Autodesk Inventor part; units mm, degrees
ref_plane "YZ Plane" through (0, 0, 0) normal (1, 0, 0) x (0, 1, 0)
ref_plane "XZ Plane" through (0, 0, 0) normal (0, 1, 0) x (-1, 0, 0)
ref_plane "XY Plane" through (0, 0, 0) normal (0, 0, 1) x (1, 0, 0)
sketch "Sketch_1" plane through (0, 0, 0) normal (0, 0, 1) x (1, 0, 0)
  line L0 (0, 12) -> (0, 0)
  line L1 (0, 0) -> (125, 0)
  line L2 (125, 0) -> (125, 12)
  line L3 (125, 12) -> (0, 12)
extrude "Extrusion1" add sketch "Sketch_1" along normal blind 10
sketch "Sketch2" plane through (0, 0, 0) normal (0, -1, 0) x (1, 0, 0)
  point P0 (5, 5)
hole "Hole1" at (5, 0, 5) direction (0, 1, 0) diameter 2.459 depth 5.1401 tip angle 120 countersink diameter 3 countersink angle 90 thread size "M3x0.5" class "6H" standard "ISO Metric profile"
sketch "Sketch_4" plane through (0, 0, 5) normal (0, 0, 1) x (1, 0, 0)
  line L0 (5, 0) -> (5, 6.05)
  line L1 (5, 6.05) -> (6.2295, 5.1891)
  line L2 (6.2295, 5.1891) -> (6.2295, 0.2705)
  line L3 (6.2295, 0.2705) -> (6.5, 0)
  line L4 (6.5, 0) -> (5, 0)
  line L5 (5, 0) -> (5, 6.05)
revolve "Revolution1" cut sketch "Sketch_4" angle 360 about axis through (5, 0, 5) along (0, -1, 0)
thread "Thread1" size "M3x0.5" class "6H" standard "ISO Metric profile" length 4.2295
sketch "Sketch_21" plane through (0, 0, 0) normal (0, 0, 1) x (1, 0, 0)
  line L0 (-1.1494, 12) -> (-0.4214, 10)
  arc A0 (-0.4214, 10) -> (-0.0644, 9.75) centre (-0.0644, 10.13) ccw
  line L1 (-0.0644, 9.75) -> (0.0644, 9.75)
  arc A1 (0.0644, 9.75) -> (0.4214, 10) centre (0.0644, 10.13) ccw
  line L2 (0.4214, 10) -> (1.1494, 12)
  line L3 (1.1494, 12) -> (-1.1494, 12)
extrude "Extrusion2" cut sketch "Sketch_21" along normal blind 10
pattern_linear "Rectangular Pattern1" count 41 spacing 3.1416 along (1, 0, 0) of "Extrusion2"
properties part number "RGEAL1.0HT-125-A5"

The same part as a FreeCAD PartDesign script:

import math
import FreeCAD as App
import Part
import Sketcher
Q = App.Units.Quantity

doc = App.newDocument("Part")
params = doc.addObject("Spreadsheet::Sheet", "Params")
for row, (alias, value) in enumerate([
    ("sketch1_width", "125 mm"),
    ("sketch1_height", "12 mm"),
    ("pad1_length", "10 mm"),
    ("hole_diameter", "2.459 mm"),
    ("hole_depth", "5.1401 mm"),
    ("hole_csink_diameter", "3 mm"),
    ("sketch3_width", "1.5 mm"),
    ("sketch3_height", "6.05 mm"),
    ("groove_angle", "360 deg"),
    ("sketch4_radius", "0.38 mm"),
    ("pocket1_length", "10 mm"),
    ("linearpattern_pitch", "3.1416 mm"),
], start=1):
    params.set(f"A{row}", alias)
    params.set(f"B{row}", "=" + value)
    params.setAlias(f"B{row}", alias)

body = doc.addObject("PartDesign::Body", "Body")

# Sketch on XY plane
sketch1 = body.newObject("Sketcher::SketchObject", "Sketch")
sketch1.AttachmentSupport = (doc.getObject("XY_Plane"), [""])
sketch1.MapMode = "FlatFace"
sketch1.addGeometry([
    Part.LineSegment(App.Vector(125, 12, 0), App.Vector(0, 12, 0)),
    Part.LineSegment(App.Vector(0, 12, 0), App.Vector(0, 0, 0)),
    Part.LineSegment(App.Vector(0, 0, 0), App.Vector(125, 0, 0)),
    Part.LineSegment(App.Vector(125, 0, 0), App.Vector(125, 12, 0)),
], False)
sketch1.addConstraint([
    Sketcher.Constraint("Coincident", 0, 2, 1, 1),
    Sketcher.Constraint("Coincident", 1, 2, 2, 1),
    Sketcher.Constraint("Coincident", 2, 2, 3, 1),
    Sketcher.Constraint("Coincident", 3, 2, 0, 1),
    Sketcher.Constraint("Horizontal", 0),
    Sketcher.Constraint("Vertical", 1),
    Sketcher.Constraint("Horizontal", 2),
    Sketcher.Constraint("Vertical", 3),
    Sketcher.Constraint("Coincident", 1, 2, -1, 1),
    Sketcher.Constraint("DistanceX", 0, 2, 0, 1, 125.0),
    Sketcher.Constraint("DistanceY", 1, 2, 1, 1, 12.0),
])
sketch1.setExpression("Constraints[9]", "Params.sketch1_width")
sketch1.setExpression("Constraints[10]", "Params.sketch1_height")
pad1 = body.newObject("PartDesign::Pad", "Pad")
pad1.Profile = sketch1
pad1.setExpression("Length", "Params.pad1_length")

# Sketch on XZ plane
sketch2 = body.newObject("Sketcher::SketchObject", "Sketch001")
sketch2.AttachmentSupport = (doc.getObject("XZ_Plane"), [""])
sketch2.MapMode = "FlatFace"
sketch2.addGeometry(Part.Circle(App.Vector(5, 5, 0), App.Vector(0, 0, 1), 1.2), False)
sketch2.addConstraint([
    Sketcher.Constraint("Diameter", 0, 2.459),
    Sketcher.Constraint("DistanceX", -1, 1, 0, 3, 5.0),
    Sketcher.Constraint("DistanceY", -1, 1, 0, 3, 5.0),
])
doc.recompute()
hole = body.newObject("PartDesign::Hole", "Hole")
hole.Profile = sketch2
hole.ThreadType = "None"
hole.setExpression("Diameter", "Params.hole_diameter")
hole.DepthType = "Dimension"
hole.setExpression("Depth", "Params.hole_depth")
hole.DrillPoint = "Angled"
hole.DrillPointAngle = 120
hole.HoleCutType = "Countersink"
hole.setExpression("HoleCutDiameter", "Params.hole_csink_diameter")
hole.HoleCutCountersinkAngle = 90

# Sketch on XY plane
sketch3 = body.newObject("Sketcher::SketchObject", "Sketch002")
sketch3.AttachmentSupport = (doc.getObject("XY_Plane"), [""])
sketch3.MapMode = "FlatFace"
sketch3.AttachmentOffset = App.Placement(App.Vector(0, 0, 5), App.Rotation())
sketch3.addGeometry([
    Part.LineSegment(App.Vector(5, 6.05, 0), App.Vector(5, 0, 0)),  # 0
    Part.LineSegment(App.Vector(5, 0, 0), App.Vector(6.5, 0, 0)),  # 1
    Part.LineSegment(App.Vector(6.5, 0, 0), App.Vector(6.23, 0.27, 0)),  # 2
    Part.LineSegment(App.Vector(6.23, 0.27, 0), App.Vector(6.23, 5.19, 0)),  # 3
    Part.LineSegment(App.Vector(6.23, 5.19, 0), App.Vector(5, 6.05, 0)),  # 4
], False)
sketch3.addGeometry(Part.LineSegment(App.Vector(5, 6.05, 0), App.Vector(5, 0, 0)), True)  # axis
sketch3.addConstraint([
    Sketcher.Constraint("Coincident", 0, 2, 1, 1),
    Sketcher.Constraint("Coincident", 1, 2, 2, 1),
    Sketcher.Constraint("Coincident", 2, 2, 3, 1),
    Sketcher.Constraint("Coincident", 3, 2, 4, 1),
    Sketcher.Constraint("Coincident", 4, 2, 0, 1),
    Sketcher.Constraint("Vertical", 0),
    Sketcher.Constraint("Horizontal", 1),
    Sketcher.Constraint("Vertical", 3),
    Sketcher.Constraint("Vertical", 5),
    Sketcher.Constraint("Coincident", 5, 1, 4, 2),
    Sketcher.Constraint("PointOnObject", 0, 2, -1),
    Sketcher.Constraint("PointOnObject", 5, 2, -1),
    Sketcher.Constraint("Angle", 2, Q("135 deg")),
    Sketcher.Constraint("Angle", 4, Q("145.0002 deg")),
    Sketcher.Constraint("DistanceX", 1, 1, 1, 2, 1.5),
    Sketcher.Constraint("DistanceX", -1, 1, 0, 2, 5.0),
    Sketcher.Constraint("DistanceY", 0, 2, 0, 1, 6.05),
    Sketcher.Constraint("Distance", 4, 1.501),
])
sketch3.setExpression("Constraints[14]", "Params.sketch3_width")
sketch3.setExpression("Constraints[16]", "Params.sketch3_height")
groove = body.newObject("PartDesign::Groove", "Groove")
groove.Profile = sketch3
groove.ReferenceAxis = (sketch3, ["Axis0"])
groove.setExpression("Angle", "Params.groove_angle")

# Sketch on XY plane
sketch4 = body.newObject("Sketcher::SketchObject", "Sketch003")
sketch4.AttachmentSupport = (doc.getObject("XY_Plane"), [""])
sketch4.MapMode = "FlatFace"
sketch4.addGeometry([
    Part.LineSegment(App.Vector(1.15, 12, 0), App.Vector(-1.15, 12, 0)),  # 0
    Part.LineSegment(App.Vector(-1.15, 12, 0), App.Vector(-0.42, 10, 0)),  # 1
    Part.ArcOfCircle(Part.Circle(App.Vector(-0.06, 10.13, 0), App.Vector(0, 0, 1), 0.38), math.radians(-160), math.radians(-90)),  # 2
    Part.LineSegment(App.Vector(-0.06, 9.75, 0), App.Vector(0.06, 9.75, 0)),  # 3
    Part.ArcOfCircle(Part.Circle(App.Vector(0.06, 10.13, 0), App.Vector(0, 0, 1), 0.38), math.radians(-90), math.radians(-20)),  # 4
    Part.LineSegment(App.Vector(0.42, 10, 0), App.Vector(1.15, 12, 0)),  # 5
], False)
sketch4.addConstraint([
    Sketcher.Constraint("Coincident", 0, 2, 1, 1),
    Sketcher.Constraint("Tangent", 1, 2, 2, 1),
    Sketcher.Constraint("Tangent", 2, 2, 3, 1),
    Sketcher.Constraint("Tangent", 3, 2, 4, 1),
    Sketcher.Constraint("Tangent", 4, 2, 5, 1),
    Sketcher.Constraint("Coincident", 5, 2, 0, 1),
    Sketcher.Constraint("Horizontal", 0),
    Sketcher.Constraint("Horizontal", 3),
    Sketcher.Constraint("Equal", 2, 4),
    Sketcher.Constraint("Symmetric", 1, 2, 4, 2, -2),
    Sketcher.Constraint("Radius", 2, 0.38),
    Sketcher.Constraint("DistanceY", -1, 1, 0, 2, 12.0),
    Sketcher.Constraint("DistanceY", -1, 1, 1, 2, 10.0),
    Sketcher.Constraint("DistanceY", -1, 1, 2, 3, 10.13),
    Sketcher.Constraint("DistanceX", 0, 2, 0, 1, 2.2988),
])
sketch4.setExpression("Constraints[10]", "Params.sketch4_radius")
pocket1 = body.newObject("PartDesign::Pocket", "Pocket")
pocket1.Profile = sketch4
pocket1.setExpression("Length", "Params.pocket1_length")
pocket1.Reversed = True
doc.recompute()

linearpattern = body.newObject("PartDesign::LinearPattern", "LinearPattern")
linearpattern.Originals = [pocket1]
linearpattern.Direction = (doc.getObject("X_Axis"), [""])
linearpattern.Mode = "offset"
linearpattern.setExpression("Offset", "Params.linearpattern_pitch")
linearpattern.Occurrences = 41
body.Tip = linearpattern

doc.recompute()
